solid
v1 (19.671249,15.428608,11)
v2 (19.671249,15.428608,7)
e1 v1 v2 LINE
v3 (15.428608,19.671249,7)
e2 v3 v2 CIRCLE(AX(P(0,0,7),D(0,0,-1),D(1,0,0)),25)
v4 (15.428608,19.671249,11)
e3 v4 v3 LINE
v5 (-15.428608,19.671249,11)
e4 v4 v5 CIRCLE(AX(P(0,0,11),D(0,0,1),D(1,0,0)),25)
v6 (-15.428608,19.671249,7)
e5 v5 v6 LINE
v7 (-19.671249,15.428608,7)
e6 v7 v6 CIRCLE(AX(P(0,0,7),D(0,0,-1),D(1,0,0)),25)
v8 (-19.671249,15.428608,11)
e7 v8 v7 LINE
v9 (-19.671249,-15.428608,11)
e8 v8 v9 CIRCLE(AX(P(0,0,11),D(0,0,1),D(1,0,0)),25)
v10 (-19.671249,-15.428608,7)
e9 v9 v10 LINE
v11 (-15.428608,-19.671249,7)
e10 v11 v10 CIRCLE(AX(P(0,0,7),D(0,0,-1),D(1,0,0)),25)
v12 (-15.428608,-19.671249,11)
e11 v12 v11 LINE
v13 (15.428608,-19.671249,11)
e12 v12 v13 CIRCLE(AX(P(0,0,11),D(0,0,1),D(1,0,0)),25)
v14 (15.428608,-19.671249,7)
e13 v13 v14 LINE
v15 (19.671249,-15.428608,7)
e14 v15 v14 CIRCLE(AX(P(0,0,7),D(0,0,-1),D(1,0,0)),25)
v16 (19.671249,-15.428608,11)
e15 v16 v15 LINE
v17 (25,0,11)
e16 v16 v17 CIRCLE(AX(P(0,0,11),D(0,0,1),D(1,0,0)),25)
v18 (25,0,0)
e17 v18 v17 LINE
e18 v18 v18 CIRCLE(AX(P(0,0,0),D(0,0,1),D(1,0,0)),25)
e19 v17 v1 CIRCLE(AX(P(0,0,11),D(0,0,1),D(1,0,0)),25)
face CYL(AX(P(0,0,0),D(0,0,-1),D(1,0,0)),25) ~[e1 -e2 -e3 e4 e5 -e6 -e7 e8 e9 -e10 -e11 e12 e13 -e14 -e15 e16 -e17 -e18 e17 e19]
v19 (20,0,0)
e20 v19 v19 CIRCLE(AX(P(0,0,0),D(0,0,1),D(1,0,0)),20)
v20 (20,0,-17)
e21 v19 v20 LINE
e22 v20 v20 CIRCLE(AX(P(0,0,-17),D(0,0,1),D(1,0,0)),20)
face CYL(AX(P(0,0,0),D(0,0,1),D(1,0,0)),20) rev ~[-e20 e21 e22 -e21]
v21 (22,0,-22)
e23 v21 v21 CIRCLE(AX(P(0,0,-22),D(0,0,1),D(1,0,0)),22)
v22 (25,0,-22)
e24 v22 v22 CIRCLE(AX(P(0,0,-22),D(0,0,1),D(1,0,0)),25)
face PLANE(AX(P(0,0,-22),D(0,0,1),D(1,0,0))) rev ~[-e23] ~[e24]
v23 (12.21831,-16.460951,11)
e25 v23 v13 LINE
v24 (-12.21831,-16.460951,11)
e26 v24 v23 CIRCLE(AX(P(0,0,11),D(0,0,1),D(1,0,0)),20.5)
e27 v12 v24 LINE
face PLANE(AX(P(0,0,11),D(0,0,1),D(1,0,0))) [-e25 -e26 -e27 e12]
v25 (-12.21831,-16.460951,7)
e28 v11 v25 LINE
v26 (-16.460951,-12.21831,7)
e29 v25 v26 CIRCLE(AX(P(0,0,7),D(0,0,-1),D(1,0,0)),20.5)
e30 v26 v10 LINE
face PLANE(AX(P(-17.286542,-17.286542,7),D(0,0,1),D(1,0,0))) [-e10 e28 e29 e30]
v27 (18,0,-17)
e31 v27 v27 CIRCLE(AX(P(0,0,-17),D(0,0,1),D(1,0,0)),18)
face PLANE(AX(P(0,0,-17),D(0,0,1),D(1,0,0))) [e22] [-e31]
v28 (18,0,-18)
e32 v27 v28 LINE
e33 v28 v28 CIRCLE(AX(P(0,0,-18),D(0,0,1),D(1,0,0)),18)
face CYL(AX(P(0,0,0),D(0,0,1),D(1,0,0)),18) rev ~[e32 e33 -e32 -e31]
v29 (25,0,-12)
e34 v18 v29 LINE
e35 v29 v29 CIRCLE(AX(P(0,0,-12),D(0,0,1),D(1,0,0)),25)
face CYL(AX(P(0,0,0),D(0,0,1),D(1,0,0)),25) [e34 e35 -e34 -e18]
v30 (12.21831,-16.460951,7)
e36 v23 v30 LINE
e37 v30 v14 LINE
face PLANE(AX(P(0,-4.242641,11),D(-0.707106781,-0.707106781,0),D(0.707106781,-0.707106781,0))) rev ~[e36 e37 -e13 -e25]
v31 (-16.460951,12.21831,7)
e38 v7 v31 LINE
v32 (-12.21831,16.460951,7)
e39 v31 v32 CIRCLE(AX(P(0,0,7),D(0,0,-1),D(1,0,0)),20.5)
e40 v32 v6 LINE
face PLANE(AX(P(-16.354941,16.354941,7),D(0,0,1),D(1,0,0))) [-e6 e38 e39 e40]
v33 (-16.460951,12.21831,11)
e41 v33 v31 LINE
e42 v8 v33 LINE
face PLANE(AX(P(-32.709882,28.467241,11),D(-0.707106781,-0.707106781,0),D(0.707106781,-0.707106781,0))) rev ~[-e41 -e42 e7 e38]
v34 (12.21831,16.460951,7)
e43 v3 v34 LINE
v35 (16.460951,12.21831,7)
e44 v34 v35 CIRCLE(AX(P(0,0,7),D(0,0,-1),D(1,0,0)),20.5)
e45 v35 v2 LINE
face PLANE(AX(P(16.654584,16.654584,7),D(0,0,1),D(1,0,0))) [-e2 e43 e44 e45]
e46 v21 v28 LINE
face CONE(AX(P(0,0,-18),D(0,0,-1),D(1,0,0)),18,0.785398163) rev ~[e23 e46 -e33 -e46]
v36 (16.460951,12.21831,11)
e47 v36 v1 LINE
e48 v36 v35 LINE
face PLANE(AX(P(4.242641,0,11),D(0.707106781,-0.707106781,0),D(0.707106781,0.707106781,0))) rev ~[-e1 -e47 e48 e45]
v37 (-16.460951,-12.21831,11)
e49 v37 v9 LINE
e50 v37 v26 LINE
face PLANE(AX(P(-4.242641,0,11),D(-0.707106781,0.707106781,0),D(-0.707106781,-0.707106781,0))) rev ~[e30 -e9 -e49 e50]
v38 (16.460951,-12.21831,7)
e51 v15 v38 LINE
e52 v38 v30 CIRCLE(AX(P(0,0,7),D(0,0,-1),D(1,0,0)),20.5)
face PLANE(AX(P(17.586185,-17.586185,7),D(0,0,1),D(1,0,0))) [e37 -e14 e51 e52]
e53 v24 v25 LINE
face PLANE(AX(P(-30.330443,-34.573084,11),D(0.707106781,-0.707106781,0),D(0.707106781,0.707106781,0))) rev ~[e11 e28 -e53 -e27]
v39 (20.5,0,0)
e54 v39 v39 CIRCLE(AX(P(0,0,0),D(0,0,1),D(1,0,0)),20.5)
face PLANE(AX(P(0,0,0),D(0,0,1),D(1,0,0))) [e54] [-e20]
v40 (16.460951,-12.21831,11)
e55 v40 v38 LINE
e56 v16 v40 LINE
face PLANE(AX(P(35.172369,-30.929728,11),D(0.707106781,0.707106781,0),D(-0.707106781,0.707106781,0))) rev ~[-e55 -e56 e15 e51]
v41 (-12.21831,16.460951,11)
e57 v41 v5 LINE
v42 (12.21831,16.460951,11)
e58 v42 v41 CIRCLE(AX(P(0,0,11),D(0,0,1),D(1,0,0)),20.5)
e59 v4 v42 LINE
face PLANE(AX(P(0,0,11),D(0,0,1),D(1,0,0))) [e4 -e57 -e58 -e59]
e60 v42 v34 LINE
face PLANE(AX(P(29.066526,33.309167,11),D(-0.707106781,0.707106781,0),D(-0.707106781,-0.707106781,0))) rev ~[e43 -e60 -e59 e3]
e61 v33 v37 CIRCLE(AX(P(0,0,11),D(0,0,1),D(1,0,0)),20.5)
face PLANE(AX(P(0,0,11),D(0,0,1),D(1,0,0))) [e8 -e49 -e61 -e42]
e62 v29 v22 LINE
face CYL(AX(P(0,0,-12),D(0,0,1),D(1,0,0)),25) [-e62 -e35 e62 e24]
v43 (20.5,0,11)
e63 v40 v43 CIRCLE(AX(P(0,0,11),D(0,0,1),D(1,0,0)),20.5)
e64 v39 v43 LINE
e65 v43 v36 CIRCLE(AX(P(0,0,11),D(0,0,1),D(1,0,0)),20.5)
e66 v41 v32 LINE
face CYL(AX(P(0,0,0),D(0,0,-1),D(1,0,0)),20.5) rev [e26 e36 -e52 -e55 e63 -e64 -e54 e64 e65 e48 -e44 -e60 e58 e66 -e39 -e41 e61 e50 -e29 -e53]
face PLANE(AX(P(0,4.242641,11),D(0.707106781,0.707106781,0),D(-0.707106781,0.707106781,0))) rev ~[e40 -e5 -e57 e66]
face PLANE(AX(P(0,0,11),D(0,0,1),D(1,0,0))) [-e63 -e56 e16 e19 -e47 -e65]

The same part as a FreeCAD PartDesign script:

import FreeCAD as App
import Part
import Sketcher
from FreeCAD import Vector
Q = App.Units.Quantity


def edges_at(feature, points):
    """Names of the edges that pass closest to the given points."""
    edges = feature.Shape.Edges
    near = lambda p: min(range(len(edges)), key=lambda i: edges[i].distToShape(Part.Vertex(*p))[0])
    return sorted({f"Edge{near(p) + 1}" for p in points})

doc = App.newDocument("Part")
body = doc.addObject("PartDesign::Body", "Body")

# Sketch on XY plane
sketch1 = body.newObject("Sketcher::SketchObject", "Sketch")
sketch1.AttachmentSupport = (doc.getObject("XY_Plane"), [""])
sketch1.MapMode = "FlatFace"
sketch1.addGeometry([
    Part.Circle(Vector(0, 0, 0), Vector(0, 0, 1), 27),
    Part.Circle(Vector(0, 0, 0), Vector(0, 0, 1), 18),
], False)
sketch1.addConstraint([
    Sketcher.Constraint("Coincident", 0, 3, -1, 1),
    Sketcher.Constraint("Coincident", 1, 3, -1, 1),
    Sketcher.Constraint("Diameter", 0, Q("54 mm")),
    Sketcher.Constraint("Diameter", 1, Q("36 mm")),
])
pad1 = body.newObject("PartDesign::Pad", "Pad")
pad1.Profile = sketch1
pad1.Length = 22
pad1.Reversed = True

# Sketch on XY plane
sketch2 = body.newObject("Sketcher::SketchObject", "Sketch001")
sketch2.AttachmentSupport = (doc.getObject("XY_Plane"), [""])
sketch2.MapMode = "FlatFace"
sketch2.addGeometry(Part.Circle(Vector(0, 0, 0), Vector(0, 0, 1), 20), False)
sketch2.addConstraint([
    Sketcher.Constraint("Coincident", 0, 3, -1, 1),
    Sketcher.Constraint("Diameter", 0, Q("40 mm")),
])
pocket1 = body.newObject("PartDesign::Pocket", "Pocket")
pocket1.Profile = sketch2
pocket1.Length = 17
doc.recompute()

chamfer = body.newObject("PartDesign::Chamfer", "Chamfer")
chamfer.Base = (pocket1, edges_at(pocket1, [(-18, 0, -22)]))
chamfer.Size = 4

# Sketch on XY plane
sketch3 = body.newObject("Sketcher::SketchObject", "Sketch002")
sketch3.AttachmentSupport = (doc.getObject("XY_Plane"), [""])
sketch3.MapMode = "FlatFace"
sketch3.addGeometry([
    Part.Circle(Vector(0, 0, 0), Vector(0, 0, 1), 27),
    Part.Circle(Vector(0, 0, 0), Vector(0, 0, 1), 25),
], False)
sketch3.addConstraint([
    Sketcher.Constraint("Coincident", 0, 3, -1, 1),
    Sketcher.Constraint("Coincident", 1, 3, -1, 1),
    Sketcher.Constraint("Diameter", 0, Q("54 mm")),
    Sketcher.Constraint("Diameter", 1, Q("50 mm")),
])
pocket2 = body.newObject("PartDesign::Pocket", "Pocket001")
pocket2.Profile = sketch3
pocket2.Length = 12

# Sketch on XY plane
sketch4 = body.newObject("Sketcher::SketchObject", "Sketch003")
sketch4.AttachmentSupport = (doc.getObject("XY_Plane"), [""])
sketch4.MapMode = "FlatFace"
sketch4.addGeometry([
    Part.Circle(Vector(0, 0, 0), Vector(0, 0, 1), 25),
    Part.Circle(Vector(0, 0, 0), Vector(0, 0, 1), 20),
], False)
sketch4.addConstraint([
    Sketcher.Constraint("Coincident", 0, 3, -1, 1),
    Sketcher.Constraint("Coincident", 1, 3, -1, 1),
    Sketcher.Constraint("Diameter", 0, Q("50 mm")),
    Sketcher.Constraint("Diameter", 1, Q("41 mm")),
])
pad2 = body.newObject("PartDesign::Pad", "Pad001")
pad2.Profile = sketch4
pad2.Length = 11

# Sketch on XY plane
sketch5 = body.newObject("Sketcher::SketchObject", "Sketch004")
sketch5.AttachmentSupport = (doc.getObject("XY_Plane"), [""])
sketch5.MapMode = "FlatFace"
sketch5.AttachmentOffset = App.Placement(Vector(0, 0, 11), App.Rotation())
sketch5.addGeometry([
    Part.LineSegment(Vector(-28, 33, 0), Vector(-33, 28, 0)),  # 0
    Part.LineSegment(Vector(-33, 28, 0), Vector(-4, 0, 0)),  # 1
    Part.LineSegment(Vector(-4, 0, 0), Vector(0, 4, 0)),  # 2
    Part.LineSegment(Vector(0, 4, 0), Vector(-28, 33, 0)),  # 3
    Part.LineSegment(Vector(0, -4, 0), Vector(-4, 0, 0)),  # 4
    Part.LineSegment(Vector(-4, 0, 0), Vector(-35, -30, 0)),  # 5
    Part.LineSegment(Vector(-35, -30, 0), Vector(-30, -35, 0)),  # 6
    Part.LineSegment(Vector(-30, -35, 0), Vector(0, -4, 0)),  # 7
    Part.LineSegment(Vector(4, 0, 0), Vector(0, -4, 0)),  # 8
    Part.LineSegment(Vector(0, -4, 0), Vector(31, -35, 0)),  # 9
    Part.LineSegment(Vector(31, -35, 0), Vector(35, -31, 0)),  # 10
    Part.LineSegment(Vector(35, -31, 0), Vector(4, 0, 0)),  # 11
    Part.LineSegment(Vector(29, 33, 0), Vector(0, 4, 0)),  # 12
    Part.LineSegment(Vector(0, 4, 0), Vector(4, 0, 0)),  # 13
    Part.LineSegment(Vector(4, 0, 0), Vector(33, 29, 0)),  # 14
    Part.LineSegment(Vector(33, 29, 0), Vector(29, 33, 0)),  # 15
], False)
sketch5.addConstraint([
    Sketcher.Constraint("Coincident", 0, 2, 1, 1),
    Sketcher.Constraint("Coincident", 1, 2, 2, 1),
    Sketcher.Constraint("Coincident", 2, 2, 3, 1),
    Sketcher.Constraint("Coincident", 3, 2, 0, 1),
    Sketcher.Constraint("Coincident", 4, 2, 5, 1),
    Sketcher.Constraint("Coincident", 5, 2, 6, 1),
    Sketcher.Constraint("Coincident", 6, 2, 7, 1),
    Sketcher.Constraint("Coincident", 7, 2, 4, 1),
    Sketcher.Constraint("Coincident", 8, 2, 9, 1),
    Sketcher.Constraint("Coincident", 9, 2, 10, 1),
    Sketcher.Constraint("Coincident", 10, 2, 11, 1),
    Sketcher.Constraint("Coincident", 11, 2, 8, 1),
    Sketcher.Constraint("Coincident", 12, 2, 13, 1),
    Sketcher.Constraint("Coincident", 13, 2, 14, 1),
    Sketcher.Constraint("Coincident", 14, 2, 15, 1),
    Sketcher.Constraint("Coincident", 15, 2, 12, 1),
    Sketcher.Constraint("Coincident", 4, 2, 1, 2),
    Sketcher.Constraint("Coincident", 8, 2, 7, 2),
    Sketcher.Constraint("Coincident", 12, 2, 2, 2),
    Sketcher.Constraint("Coincident", 13, 2, 11, 2),
    Sketcher.Constraint("Symmetric", 2, 2, 7, 2, -1, 1),
    Sketcher.Constraint("Symmetric", 1, 2, 11, 2, -1, 1),
    Sketcher.Constraint("PointOnObject", 1, 2, -1),
    Sketcher.Constraint("PointOnObject", 2, 2, -2),
    Sketcher.Constraint("Perpendicular", 0, 1),
    Sketcher.Constraint("Perpendicular", 1, 2),
    Sketcher.Constraint("Perpendicular", 2, 3),
    Sketcher.Constraint("Parallel", 3, 4),
    Sketcher.Constraint("Perpendicular", 4, 5),
    Sketcher.Constraint("Perpendicular", 5, 6),
    Sketcher.Constraint("Perpendicular", 6, 7),
    Sketcher.Constraint("Perpendicular", 8, 9),
    Sketcher.Constraint("Perpendicular", 9, 10),
    Sketcher.Constraint("Perpendicular", 10, 11),
    Sketcher.Constraint("Perpendicular", 11, 12),
    Sketcher.Constraint("Perpendicular", 13, 14),
    Sketcher.Constraint("Perpendicular", 14, 15),
    Sketcher.Constraint("Distance", 0, Q("6 mm")),
    Sketcher.Constraint("DistanceY", 2, 2, 0, 2, Q("24.2246 mm")),
    Sketcher.Constraint("DistanceX", 6, 2, 1, 2, Q("26.087802 mm")),
    Sketcher.Constraint("Distance", 9, Q("43.741241 mm")),
    Sketcher.Constraint("Distance", 12, Q("41.106275 mm")),
])
pocket3 = body.newObject("PartDesign::Pocket", "Pocket002")
pocket3.Profile = sketch5
pocket3.Length = 4

# Sketch on XY plane
sketch6 = body.newObject("Sketcher::SketchObject", "Sketch005")
sketch6.AttachmentSupport = (doc.getObject("XY_Plane"), [""])
sketch6.MapMode = "FlatFace"
sketch6.AttachmentOffset = App.Placement(Vector(0, 0, -12), App.Rotation())
sketch6.addGeometry([
    Part.Circle(Vector(0, 0, 0), Vector(0, 0, 1), 27),
    Part.Circle(Vector(0, 0, 0), Vector(0, 0, 1), 25),
], False)
sketch6.addConstraint([
    Sketcher.Constraint("Coincident", 0, 3, -1, 1),
    Sketcher.Constraint("Coincident", 1, 3, -1, 1),
    Sketcher.Constraint("Diameter", 0, Q("54 mm")),
    Sketcher.Constraint("Diameter", 1, Q("50 mm")),
])
pocket4 = body.newObject("PartDesign::Pocket", "Pocket003")
pocket4.Profile = sketch6
pocket4.Type = "ThroughAll"

doc.recompute()
